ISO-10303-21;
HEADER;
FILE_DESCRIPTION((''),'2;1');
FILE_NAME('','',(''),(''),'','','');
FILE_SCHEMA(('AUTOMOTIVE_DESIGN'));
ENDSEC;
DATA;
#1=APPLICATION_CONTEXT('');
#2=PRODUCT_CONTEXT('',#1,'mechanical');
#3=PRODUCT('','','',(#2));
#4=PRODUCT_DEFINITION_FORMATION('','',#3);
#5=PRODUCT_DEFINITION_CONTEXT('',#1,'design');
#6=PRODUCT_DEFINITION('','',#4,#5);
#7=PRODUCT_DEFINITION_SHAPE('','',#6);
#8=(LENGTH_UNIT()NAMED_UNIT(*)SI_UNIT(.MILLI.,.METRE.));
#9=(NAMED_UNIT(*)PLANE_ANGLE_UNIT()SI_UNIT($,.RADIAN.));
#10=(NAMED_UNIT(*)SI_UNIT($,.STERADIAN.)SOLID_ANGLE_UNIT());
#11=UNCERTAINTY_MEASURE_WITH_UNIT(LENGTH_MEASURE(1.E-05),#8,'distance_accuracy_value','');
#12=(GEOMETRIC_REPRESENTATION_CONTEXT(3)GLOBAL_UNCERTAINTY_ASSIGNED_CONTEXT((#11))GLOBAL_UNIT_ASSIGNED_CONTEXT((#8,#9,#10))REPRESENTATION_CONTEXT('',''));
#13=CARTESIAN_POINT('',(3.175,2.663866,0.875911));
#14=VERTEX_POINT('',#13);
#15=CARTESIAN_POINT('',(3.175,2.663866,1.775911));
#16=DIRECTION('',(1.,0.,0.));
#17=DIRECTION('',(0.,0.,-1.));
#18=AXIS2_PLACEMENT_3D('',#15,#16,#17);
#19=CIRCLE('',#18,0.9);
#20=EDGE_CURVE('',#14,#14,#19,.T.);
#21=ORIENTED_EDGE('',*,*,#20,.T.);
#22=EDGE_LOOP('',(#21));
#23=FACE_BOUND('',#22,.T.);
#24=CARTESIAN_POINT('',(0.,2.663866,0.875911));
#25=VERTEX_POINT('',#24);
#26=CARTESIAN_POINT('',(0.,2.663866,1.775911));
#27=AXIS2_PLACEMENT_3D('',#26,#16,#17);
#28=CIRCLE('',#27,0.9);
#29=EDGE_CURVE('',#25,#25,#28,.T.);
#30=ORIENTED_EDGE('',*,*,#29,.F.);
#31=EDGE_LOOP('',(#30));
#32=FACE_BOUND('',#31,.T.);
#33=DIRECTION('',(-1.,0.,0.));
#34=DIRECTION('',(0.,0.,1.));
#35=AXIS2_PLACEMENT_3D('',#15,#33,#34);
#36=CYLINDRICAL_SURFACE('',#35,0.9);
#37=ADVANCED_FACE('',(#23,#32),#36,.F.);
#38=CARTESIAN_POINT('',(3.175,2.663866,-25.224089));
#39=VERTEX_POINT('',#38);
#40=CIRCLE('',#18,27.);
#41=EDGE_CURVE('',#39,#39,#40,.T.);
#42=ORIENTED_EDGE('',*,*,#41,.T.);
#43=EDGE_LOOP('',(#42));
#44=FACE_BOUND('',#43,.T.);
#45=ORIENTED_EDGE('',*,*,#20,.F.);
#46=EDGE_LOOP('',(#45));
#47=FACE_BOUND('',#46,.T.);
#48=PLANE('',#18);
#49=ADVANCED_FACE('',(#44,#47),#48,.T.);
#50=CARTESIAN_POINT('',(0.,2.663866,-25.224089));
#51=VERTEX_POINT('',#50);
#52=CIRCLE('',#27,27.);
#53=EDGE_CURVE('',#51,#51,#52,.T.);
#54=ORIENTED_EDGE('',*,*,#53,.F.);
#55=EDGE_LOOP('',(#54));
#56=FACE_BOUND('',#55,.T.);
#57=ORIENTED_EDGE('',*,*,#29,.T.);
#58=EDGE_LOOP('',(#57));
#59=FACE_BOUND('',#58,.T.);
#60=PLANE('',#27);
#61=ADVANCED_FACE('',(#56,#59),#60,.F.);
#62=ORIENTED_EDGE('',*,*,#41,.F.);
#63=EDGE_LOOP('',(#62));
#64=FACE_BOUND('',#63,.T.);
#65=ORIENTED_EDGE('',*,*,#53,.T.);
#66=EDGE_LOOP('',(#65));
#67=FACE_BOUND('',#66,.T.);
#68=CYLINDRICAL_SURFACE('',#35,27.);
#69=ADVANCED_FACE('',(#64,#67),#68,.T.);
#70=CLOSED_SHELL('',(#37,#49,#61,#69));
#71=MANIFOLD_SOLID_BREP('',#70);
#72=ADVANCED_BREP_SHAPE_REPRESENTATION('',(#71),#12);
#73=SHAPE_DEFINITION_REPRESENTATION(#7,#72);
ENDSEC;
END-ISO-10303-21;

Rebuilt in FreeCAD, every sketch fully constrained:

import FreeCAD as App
import Part
import Sketcher

V = App.Vector

doc = App.newDocument("Part")
body = doc.addObject("PartDesign::Body", "Body")

sketch1 = body.newObject("Sketcher::SketchObject", "Sketch")
sketch1.AttachmentSupport = (doc.getObject("YZ_Plane"), [""])
sketch1.MapMode = "FlatFace"
sketch1.addGeometry([
    Part.Circle(V(2.7, 1.8, 0), V(0, 0, 1), 27),
    Part.Circle(V(2.7, 1.8, 0), V(0, 0, 1), 0.9),
], False)
sketch1.addConstraint([
    Sketcher.Constraint("Coincident", 1, 3, 0, 3),
    Sketcher.Constraint("Diameter", 0, 54.0),
    Sketcher.Constraint("Diameter", 1, 1.8),
    Sketcher.Constraint("DistanceY", -1, 1, 0, 3, 1.775911),
    Sketcher.Constraint("DistanceX", -1, 1, 0, 3, 2.663866),
])
pad1 = body.newObject("PartDesign::Pad", "Pad")
pad1.Profile = sketch1
pad1.Length = 3.175

doc.recompute()
